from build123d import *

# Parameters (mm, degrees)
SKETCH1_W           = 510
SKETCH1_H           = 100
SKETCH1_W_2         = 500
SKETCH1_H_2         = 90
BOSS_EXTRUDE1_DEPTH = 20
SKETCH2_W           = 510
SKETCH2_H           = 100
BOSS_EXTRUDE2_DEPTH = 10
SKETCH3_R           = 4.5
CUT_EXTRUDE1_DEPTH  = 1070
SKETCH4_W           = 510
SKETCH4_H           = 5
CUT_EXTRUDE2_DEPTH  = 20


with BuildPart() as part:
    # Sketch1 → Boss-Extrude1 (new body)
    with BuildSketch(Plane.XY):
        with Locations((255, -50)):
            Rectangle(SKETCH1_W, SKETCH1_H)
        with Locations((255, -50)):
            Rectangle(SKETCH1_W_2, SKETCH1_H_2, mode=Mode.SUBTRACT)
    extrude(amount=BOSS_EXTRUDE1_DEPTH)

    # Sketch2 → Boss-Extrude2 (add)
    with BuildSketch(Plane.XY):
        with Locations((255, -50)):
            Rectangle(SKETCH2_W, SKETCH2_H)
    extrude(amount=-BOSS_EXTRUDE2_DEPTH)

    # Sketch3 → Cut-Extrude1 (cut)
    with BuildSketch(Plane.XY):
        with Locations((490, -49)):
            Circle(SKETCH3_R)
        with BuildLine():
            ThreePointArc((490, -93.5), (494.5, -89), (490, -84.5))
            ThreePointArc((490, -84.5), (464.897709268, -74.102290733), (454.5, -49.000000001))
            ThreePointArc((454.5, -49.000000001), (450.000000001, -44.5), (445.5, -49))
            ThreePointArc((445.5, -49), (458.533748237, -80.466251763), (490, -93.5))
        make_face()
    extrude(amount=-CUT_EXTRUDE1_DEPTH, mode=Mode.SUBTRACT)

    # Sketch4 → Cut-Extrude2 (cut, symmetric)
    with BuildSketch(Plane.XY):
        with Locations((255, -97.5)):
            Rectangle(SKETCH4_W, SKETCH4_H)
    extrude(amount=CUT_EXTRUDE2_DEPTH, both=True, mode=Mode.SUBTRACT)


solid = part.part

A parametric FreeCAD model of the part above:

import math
import FreeCAD as App
import Part
import Sketcher
from FreeCAD import Vector
Q = App.Units.Quantity


def add_polygon(sketch, points):
    """Adds a closed chain of lines whose ends are joined by coincident constraints."""
    first, n = sketch.GeometryCount, len(points)
    for a, b in zip(points, points[1:] + points[:1]):
        sketch.addGeometry(Part.LineSegment(App.Vector(*a, 0), App.Vector(*b, 0)), False)
    for i in range(n):
        sketch.addConstraint(Sketcher.Constraint("Coincident", first + i, 2, first + (i + 1) % n, 1))

doc = App.newDocument("Part")
body = doc.addObject("PartDesign::Body", "Body")

sketch1 = doc.addObject("Sketcher::SketchObject", "Sketch")
body.addObject(sketch1)
sketch1.AttachmentSupport = (doc.XY_Plane, [""])
sketch1.MapMode = "FlatFace"
add_polygon(sketch1, [(0, 0), (0, -100), (510, -100), (510, 0)])
add_polygon(sketch1, [(505, -95), (5, -95), (5, -5), (505, -5)])
sketch1.addConstraint([
    Sketcher.Constraint("Vertical", 0),
    Sketcher.Constraint("Horizontal", 1),
    Sketcher.Constraint("Vertical", 2),
    Sketcher.Constraint("Horizontal", 3),
    Sketcher.Constraint("Horizontal", 4),
    Sketcher.Constraint("Vertical", 5),
    Sketcher.Constraint("Horizontal", 6),
    Sketcher.Constraint("Vertical", 7),
    Sketcher.Constraint("Coincident", 3, 2, -1, 1),
    Sketcher.Constraint("DistanceX", 1, 1, 1, 2, Q("510 mm")),
    Sketcher.Constraint("DistanceX", 4, 2, 4, 1, Q("500 mm")),
    Sketcher.Constraint("DistanceY", 0, 2, 0, 1, Q("100 mm")),
    Sketcher.Constraint("DistanceY", 5, 1, 5, 2, Q("90 mm")),
    Sketcher.Constraint("DistanceX", -1, 1, 4, 2, Q("5 mm")),
    Sketcher.Constraint("DistanceY", 4, 2, -1, 1, Q("95 mm")),
])
pad1 = doc.addObject("PartDesign::Pad", "Pad")
body.addObject(pad1)
pad1.Profile = sketch1
pad1.Length = 20

sketch2 = doc.addObject("Sketcher::SketchObject", "Sketch001")
body.addObject(sketch2)
sketch2.AttachmentSupport = (doc.XY_Plane, [""])
sketch2.MapMode = "FlatFace"
add_polygon(sketch2, [(0, 0), (0, -100), (510, -100), (510, 0)])
sketch2.addConstraint([
    Sketcher.Constraint("Vertical", 0),
    Sketcher.Constraint("Horizontal", 1),
    Sketcher.Constraint("Vertical", 2),
    Sketcher.Constraint("Horizontal", 3),
    Sketcher.Constraint("Coincident", 3, 2, -1, 1),
    Sketcher.Constraint("DistanceX", 1, 1, 1, 2, Q("510 mm")),
    Sketcher.Constraint("DistanceY", 0, 2, 0, 1, Q("100 mm")),
])
pad2 = doc.addObject("PartDesign::Pad", "Pad001")
body.addObject(pad2)
pad2.Profile = sketch2
pad2.Length = 10
pad2.Reversed = True

sketch3 = doc.addObject("Sketcher::SketchObject", "Sketch002")
body.addObject(sketch3)
sketch3.AttachmentSupport = (doc.XY_Plane, [""])
sketch3.MapMode = "FlatFace"
sketch3.addGeometry([
    Part.Circle(Vector(490, -49, 0), Vector(0, 0, 1), 4.5),
    Part.ArcOfCircle(Part.Circle(Vector(490, -89, 0), Vector(0, 0, 1), 4.5), math.radians(-90), math.radians(90)),
    Part.ArcOfCircle(Part.Circle(Vector(490, -49, 0), Vector(0, 0, 1), 35.5), math.radians(180), math.radians(270)),
    Part.ArcOfCircle(Part.Circle(Vector(450, -49, 0), Vector(0, 0, 1), 4.5), math.radians(0), math.radians(180)),
    Part.ArcOfCircle(Part.Circle(Vector(490, -49, 0), Vector(0, 0, 1), 44.5), math.radians(180), math.radians(270)),
], False)
sketch3.addConstraint([
    Sketcher.Constraint("Tangent", 1, 2, 2, 2),
    Sketcher.Constraint("Tangent", 2, 1, 3, 1),
    Sketcher.Constraint("Tangent", 3, 2, 4, 1),
    Sketcher.Constraint("Tangent", 4, 2, 1, 1),
    Sketcher.Constraint("Coincident", 2, 3, 0, 3),
    Sketcher.Constraint("Coincident", 4, 3, 0, 3),
    Sketcher.Constraint("Equal", 0, 1),
    Sketcher.Constraint("Horizontal", 2, 3, 3, 3),
    Sketcher.Constraint("Vertical", 0, 3, 1, 3),
    Sketcher.Constraint("Diameter", 0, Q("9 mm")),
    Sketcher.Constraint("Radius", 2, Q("35.5 mm")),
    Sketcher.Constraint("DistanceX", -1, 1, 0, 3, Q("490 mm")),
    Sketcher.Constraint("DistanceY", 0, 3, -1, 1, Q("49 mm")),
])
pocket1 = doc.addObject("PartDesign::Pocket", "Pocket")
body.addObject(pocket1)
pocket1.Profile = sketch3
pocket1.Length = 1070

sketch4 = doc.addObject("Sketcher::SketchObject", "Sketch003")
body.addObject(sketch4)
sketch4.AttachmentSupport = (doc.XY_Plane, [""])
sketch4.MapMode = "FlatFace"
add_polygon(sketch4, [(0, -95), (0, -100), (510, -100), (510, -95)])
sketch4.addConstraint([
    Sketcher.Constraint("Vertical", 0),
    Sketcher.Constraint("Horizontal", 1),
    Sketcher.Constraint("Vertical", 2),
    Sketcher.Constraint("Horizontal", 3),
    Sketcher.Constraint("PointOnObject", 0, 2, -2),
    Sketcher.Constraint("DistanceX", 1, 1, 1, 2, Q("510 mm")),
    Sketcher.Constraint("DistanceY", 0, 2, 0, 1, Q("5 mm")),
    Sketcher.Constraint("DistanceY", 0, 2, -1, 1, Q("100 mm")),
])
pocket2 = doc.addObject("PartDesign::Pocket", "Pocket001")
body.addObject(pocket2)
pocket2.Profile = sketch4
pocket2.Length = 40
pocket2.Midplane = True

doc.recompute()
